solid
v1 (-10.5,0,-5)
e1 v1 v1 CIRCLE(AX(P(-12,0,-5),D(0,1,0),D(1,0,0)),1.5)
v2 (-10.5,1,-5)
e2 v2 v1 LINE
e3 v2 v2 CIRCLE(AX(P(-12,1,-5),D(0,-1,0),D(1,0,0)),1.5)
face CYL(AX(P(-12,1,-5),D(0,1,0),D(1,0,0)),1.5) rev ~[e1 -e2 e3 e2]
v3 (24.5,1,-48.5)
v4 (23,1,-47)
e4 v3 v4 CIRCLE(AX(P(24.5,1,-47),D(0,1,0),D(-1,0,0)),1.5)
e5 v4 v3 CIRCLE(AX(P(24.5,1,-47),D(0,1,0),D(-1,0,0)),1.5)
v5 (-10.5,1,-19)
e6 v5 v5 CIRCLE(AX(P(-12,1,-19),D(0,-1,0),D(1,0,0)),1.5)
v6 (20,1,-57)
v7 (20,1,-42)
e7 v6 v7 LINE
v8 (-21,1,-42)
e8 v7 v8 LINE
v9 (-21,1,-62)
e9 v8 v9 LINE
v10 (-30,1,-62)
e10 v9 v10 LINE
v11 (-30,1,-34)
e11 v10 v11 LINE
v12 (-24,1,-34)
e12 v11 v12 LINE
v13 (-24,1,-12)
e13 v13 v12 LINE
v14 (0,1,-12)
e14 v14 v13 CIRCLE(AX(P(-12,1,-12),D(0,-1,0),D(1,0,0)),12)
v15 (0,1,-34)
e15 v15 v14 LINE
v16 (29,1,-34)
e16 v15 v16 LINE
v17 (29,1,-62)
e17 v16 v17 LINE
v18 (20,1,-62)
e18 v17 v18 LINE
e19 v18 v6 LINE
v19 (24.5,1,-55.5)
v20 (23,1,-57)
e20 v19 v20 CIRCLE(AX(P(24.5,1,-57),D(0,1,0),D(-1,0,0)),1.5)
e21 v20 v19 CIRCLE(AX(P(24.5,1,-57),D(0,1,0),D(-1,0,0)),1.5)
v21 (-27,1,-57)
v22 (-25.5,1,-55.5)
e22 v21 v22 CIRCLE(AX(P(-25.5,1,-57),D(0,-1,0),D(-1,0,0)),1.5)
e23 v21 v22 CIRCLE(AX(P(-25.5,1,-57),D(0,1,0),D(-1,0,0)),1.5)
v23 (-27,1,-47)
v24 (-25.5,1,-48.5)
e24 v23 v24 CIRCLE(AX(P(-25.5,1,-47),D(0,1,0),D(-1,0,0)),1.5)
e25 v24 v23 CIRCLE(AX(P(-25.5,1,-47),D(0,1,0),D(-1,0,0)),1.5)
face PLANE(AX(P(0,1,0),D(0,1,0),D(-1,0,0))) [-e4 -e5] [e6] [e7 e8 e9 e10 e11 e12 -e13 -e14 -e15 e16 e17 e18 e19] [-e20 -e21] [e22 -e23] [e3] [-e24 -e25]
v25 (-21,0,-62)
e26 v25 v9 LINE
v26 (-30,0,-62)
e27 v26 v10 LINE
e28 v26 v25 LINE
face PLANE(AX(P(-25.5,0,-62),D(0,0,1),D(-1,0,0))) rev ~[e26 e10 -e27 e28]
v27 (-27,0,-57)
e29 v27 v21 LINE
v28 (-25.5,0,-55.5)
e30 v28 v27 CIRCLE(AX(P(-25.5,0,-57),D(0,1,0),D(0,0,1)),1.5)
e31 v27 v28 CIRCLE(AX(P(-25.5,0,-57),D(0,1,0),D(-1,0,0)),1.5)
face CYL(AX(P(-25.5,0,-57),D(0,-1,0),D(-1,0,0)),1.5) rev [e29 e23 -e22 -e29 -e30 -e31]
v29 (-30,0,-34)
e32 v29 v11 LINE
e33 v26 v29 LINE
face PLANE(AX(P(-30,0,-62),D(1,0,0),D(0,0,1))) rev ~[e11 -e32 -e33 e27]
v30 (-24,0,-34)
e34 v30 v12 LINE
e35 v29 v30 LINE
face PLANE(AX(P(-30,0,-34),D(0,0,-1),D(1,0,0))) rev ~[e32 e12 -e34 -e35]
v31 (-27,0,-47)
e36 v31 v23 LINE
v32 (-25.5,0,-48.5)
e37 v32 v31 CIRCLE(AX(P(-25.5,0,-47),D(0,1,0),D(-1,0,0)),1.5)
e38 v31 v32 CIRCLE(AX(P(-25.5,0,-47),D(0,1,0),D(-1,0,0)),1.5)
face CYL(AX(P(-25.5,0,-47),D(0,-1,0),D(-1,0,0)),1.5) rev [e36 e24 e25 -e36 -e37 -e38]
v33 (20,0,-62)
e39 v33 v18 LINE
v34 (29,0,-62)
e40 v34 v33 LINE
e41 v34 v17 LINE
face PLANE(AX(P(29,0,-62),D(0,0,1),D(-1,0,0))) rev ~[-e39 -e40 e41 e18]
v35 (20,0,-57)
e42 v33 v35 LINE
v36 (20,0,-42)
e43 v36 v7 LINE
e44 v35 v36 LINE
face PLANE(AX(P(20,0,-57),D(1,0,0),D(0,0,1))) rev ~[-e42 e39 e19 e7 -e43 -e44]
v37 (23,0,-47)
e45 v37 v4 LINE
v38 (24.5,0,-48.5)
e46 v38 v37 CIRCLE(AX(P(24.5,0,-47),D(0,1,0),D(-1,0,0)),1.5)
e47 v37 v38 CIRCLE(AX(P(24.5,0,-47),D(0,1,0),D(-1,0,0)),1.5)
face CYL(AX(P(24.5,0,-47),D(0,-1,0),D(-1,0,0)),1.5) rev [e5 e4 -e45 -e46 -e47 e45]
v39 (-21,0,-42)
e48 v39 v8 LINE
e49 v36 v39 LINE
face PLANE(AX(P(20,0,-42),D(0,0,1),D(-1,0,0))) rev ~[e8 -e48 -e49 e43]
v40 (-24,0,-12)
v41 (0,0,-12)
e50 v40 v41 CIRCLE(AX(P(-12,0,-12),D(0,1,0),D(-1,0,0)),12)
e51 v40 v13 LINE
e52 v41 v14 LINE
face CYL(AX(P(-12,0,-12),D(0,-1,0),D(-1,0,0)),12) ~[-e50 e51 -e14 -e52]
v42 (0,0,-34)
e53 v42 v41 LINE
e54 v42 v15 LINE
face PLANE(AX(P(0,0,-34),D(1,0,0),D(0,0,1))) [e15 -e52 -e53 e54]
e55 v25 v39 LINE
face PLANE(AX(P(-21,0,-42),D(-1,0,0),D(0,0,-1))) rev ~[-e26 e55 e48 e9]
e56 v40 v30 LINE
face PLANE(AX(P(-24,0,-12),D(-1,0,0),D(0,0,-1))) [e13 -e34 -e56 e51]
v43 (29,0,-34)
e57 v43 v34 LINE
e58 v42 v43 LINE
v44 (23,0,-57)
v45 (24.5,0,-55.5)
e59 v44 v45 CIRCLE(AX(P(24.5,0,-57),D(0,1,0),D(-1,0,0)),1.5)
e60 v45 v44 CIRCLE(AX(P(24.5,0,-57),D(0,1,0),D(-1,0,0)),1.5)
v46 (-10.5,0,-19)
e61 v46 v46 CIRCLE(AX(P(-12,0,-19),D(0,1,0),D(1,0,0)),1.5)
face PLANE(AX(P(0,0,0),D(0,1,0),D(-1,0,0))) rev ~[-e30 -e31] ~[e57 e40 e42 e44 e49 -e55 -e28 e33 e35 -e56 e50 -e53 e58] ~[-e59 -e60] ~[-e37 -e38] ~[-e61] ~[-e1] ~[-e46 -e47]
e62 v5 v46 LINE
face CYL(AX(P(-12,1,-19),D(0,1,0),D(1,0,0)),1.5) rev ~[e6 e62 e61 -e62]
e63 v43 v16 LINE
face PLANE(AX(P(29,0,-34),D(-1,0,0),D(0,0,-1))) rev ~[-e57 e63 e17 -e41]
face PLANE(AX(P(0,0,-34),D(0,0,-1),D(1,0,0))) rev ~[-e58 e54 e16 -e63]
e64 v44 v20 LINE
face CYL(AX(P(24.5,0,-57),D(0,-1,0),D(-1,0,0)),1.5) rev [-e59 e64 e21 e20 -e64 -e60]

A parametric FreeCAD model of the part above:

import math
import FreeCAD as App
import Part
import Sketcher

V = App.Vector

doc = App.newDocument("Part")
body = doc.addObject("PartDesign::Body", "Body")

# Sketch on XZ plane
sketch1 = body.newObject("Sketcher::SketchObject", "Sketch")
sketch1.AttachmentSupport = (doc.getObject("XZ_Plane"), [""])
sketch1.MapMode = "FlatFace"
sketch1.addGeometry([
    Part.LineSegment(V(-24, -34, 0), V(-24, -12, 0)),  # 0
    Part.ArcOfCircle(Part.Circle(V(-12, -12, 0), V(0, 0, 1), 12), math.radians(0), math.radians(180)),  # 1
    Part.LineSegment(V(0, -12, 0), V(0, -34, 0)),  # 2
    Part.LineSegment(V(0, -34, 0), V(29, -34, 0)),  # 3
    Part.LineSegment(V(29, -34, 0), V(29, -62, 0)),  # 4
    Part.LineSegment(V(29, -62, 0), V(20, -62, 0)),  # 5
    Part.LineSegment(V(20, -62, 0), V(20, -57, 0)),  # 6
    Part.LineSegment(V(20, -57, 0), V(20, -42, 0)),  # 7
    Part.LineSegment(V(20, -42, 0), V(-21, -42, 0)),  # 8
    Part.LineSegment(V(-21, -42, 0), V(-21, -62, 0)),  # 9
    Part.LineSegment(V(-21, -62, 0), V(-30, -62, 0)),  # 10
    Part.LineSegment(V(-30, -62, 0), V(-30, -34, 0)),  # 11
    Part.LineSegment(V(-30, -34, 0), V(-24, -34, 0)),  # 12
    Part.Circle(V(-25.5, -57, 0), V(0, 0, 1), 1.5),  # 13
    Part.ArcOfCircle(Part.Circle(V(24.5, -57, 0), V(0, 0, 1), 1.5), math.radians(90), math.radians(180)),  # 14
    Part.ArcOfCircle(Part.Circle(V(24.5, -57, 0), V(0, 0, 1), 1.5), math.radians(180), math.radians(450)),  # 15
    Part.Circle(V(24.5, -47, 0), V(0, 0, 1), 1.5),  # 16
    Part.Circle(V(-25.5, -47, 0), V(0, 0, 1), 1.5),  # 17
], False)
sketch1.addConstraint([
    Sketcher.Constraint("Tangent", 0, 2, 1, 2),
    Sketcher.Constraint("Tangent", 1, 1, 2, 1),
    Sketcher.Constraint("Coincident", 2, 2, 3, 1),
    Sketcher.Constraint("Coincident", 3, 2, 4, 1),
    Sketcher.Constraint("Coincident", 4, 2, 5, 1),
    Sketcher.Constraint("Coincident", 5, 2, 6, 1),
    Sketcher.Constraint("Coincident", 6, 2, 7, 1),
    Sketcher.Constraint("Coincident", 7, 2, 8, 1),
    Sketcher.Constraint("Coincident", 8, 2, 9, 1),
    Sketcher.Constraint("Coincident", 9, 2, 10, 1),
    Sketcher.Constraint("Coincident", 10, 2, 11, 1),
    Sketcher.Constraint("Coincident", 11, 2, 12, 1),
    Sketcher.Constraint("Coincident", 12, 2, 0, 1),
    Sketcher.Constraint("Tangent", 14, 1, 15, 2),
    Sketcher.Constraint("Coincident", 15, 1, 14, 2),
    Sketcher.Constraint("Vertical", 0),
    Sketcher.Constraint("Vertical", 2),
    Sketcher.Constraint("Horizontal", 3),
    Sketcher.Constraint("Vertical", 4),
    Sketcher.Constraint("Horizontal", 5),
    Sketcher.Constraint("Vertical", 6),
    Sketcher.Constraint("Vertical", 7),
    Sketcher.Constraint("Horizontal", 8),
    Sketcher.Constraint("Vertical", 9),
    Sketcher.Constraint("Horizontal", 10),
    Sketcher.Constraint("Vertical", 11),
    Sketcher.Constraint("Horizontal", 12),
    Sketcher.Constraint("Equal", 13, 14),
    Sketcher.Constraint("Equal", 15, 16),
    Sketcher.Constraint("Equal", 16, 17),
    Sketcher.Constraint("PointOnObject", 1, 1, -2),
    Sketcher.Constraint("Horizontal", 13, 3, 14, 3),
    Sketcher.Constraint("Horizontal", 16, 3, 17, 3),
    Sketcher.Constraint("Horizontal", 15, 3, 6, 2),
    Sketcher.Constraint("Horizontal", 5, 2, 9, 2),
    Sketcher.Constraint("Horizontal", 3, 2, 11, 2),
    Sketcher.Constraint("Horizontal", 6, 2, 15, 1),
    Sketcher.Constraint("Vertical", 15, 3, 16, 3),
    Sketcher.Constraint("Vertical", 13, 3, 17, 3),
    Sketcher.Constraint("Vertical", 16, 3, 14, 1),
    Sketcher.Constraint("Equal", 5, 10),
    Sketcher.Constraint("Diameter", 13, 3.0),
    Sketcher.Constraint("Radius", 1, 12.0),
    Sketcher.Constraint("DistanceX", 3, 1, 3, 2, 29.0),
    Sketcher.Constraint("DistanceX", 5, 2, 5, 1, 9.0),
    Sketcher.Constraint("DistanceX", 8, 2, 8, 1, 41.0),
    Sketcher.Constraint("DistanceY", 4, 2, 4, 1, 28.0),
    Sketcher.Constraint("DistanceY", 6, 1, 6, 2, 5.0),
    Sketcher.Constraint("DistanceY", 9, 2, 9, 1, 20.0),
    Sketcher.Constraint("DistanceY", 1, 3, -1, 1, 12.0),
    Sketcher.Constraint("DistanceY", 2, 2, -1, 1, 34.0),
    Sketcher.Constraint("DistanceY", 14, 3, 16, 3, 10.0),
    Sketcher.Constraint("DistanceX", 6, 2, 15, 1, 3.0),
    Sketcher.Constraint("DistanceX", 13, 3, 14, 3, 50.0),
])
pad1 = body.newObject("PartDesign::Pad", "Pad")
pad1.Profile = sketch1
pad1.Length = 1
pad1.Reversed = True

# Sketch on XZ plane
sketch2 = body.newObject("Sketcher::SketchObject", "Sketch001")
sketch2.AttachmentSupport = (doc.getObject("XZ_Plane"), [""])
sketch2.MapMode = "FlatFace"
sketch2.AttachmentOffset = App.Placement(V(0, 0, -1), App.Rotation())
sketch2.addGeometry([
    Part.Circle(V(-12, -19, 0), V(0, 0, 1), 1.5),
    Part.Circle(V(-12, -5, 0), V(0, 0, 1), 1.5),
], False)
sketch2.addConstraint([
    Sketcher.Constraint("Equal", 0, 1),
    Sketcher.Constraint("Vertical", 0, 3, 1, 3),
    Sketcher.Constraint("Diameter", 0, 3.0),
    Sketcher.Constraint("DistanceY", 0, 3, 1, 3, 14.0),
    Sketcher.Constraint("DistanceX", 0, 3, -1, 1, 12.0),
    Sketcher.Constraint("DistanceY", 0, 3, -1, 1, 19.0),
])
pocket1 = body.newObject("PartDesign::Pocket", "Pocket")
pocket1.Profile = sketch2
pocket1.Length = 1
pocket1.Reversed = True

doc.recompute()
